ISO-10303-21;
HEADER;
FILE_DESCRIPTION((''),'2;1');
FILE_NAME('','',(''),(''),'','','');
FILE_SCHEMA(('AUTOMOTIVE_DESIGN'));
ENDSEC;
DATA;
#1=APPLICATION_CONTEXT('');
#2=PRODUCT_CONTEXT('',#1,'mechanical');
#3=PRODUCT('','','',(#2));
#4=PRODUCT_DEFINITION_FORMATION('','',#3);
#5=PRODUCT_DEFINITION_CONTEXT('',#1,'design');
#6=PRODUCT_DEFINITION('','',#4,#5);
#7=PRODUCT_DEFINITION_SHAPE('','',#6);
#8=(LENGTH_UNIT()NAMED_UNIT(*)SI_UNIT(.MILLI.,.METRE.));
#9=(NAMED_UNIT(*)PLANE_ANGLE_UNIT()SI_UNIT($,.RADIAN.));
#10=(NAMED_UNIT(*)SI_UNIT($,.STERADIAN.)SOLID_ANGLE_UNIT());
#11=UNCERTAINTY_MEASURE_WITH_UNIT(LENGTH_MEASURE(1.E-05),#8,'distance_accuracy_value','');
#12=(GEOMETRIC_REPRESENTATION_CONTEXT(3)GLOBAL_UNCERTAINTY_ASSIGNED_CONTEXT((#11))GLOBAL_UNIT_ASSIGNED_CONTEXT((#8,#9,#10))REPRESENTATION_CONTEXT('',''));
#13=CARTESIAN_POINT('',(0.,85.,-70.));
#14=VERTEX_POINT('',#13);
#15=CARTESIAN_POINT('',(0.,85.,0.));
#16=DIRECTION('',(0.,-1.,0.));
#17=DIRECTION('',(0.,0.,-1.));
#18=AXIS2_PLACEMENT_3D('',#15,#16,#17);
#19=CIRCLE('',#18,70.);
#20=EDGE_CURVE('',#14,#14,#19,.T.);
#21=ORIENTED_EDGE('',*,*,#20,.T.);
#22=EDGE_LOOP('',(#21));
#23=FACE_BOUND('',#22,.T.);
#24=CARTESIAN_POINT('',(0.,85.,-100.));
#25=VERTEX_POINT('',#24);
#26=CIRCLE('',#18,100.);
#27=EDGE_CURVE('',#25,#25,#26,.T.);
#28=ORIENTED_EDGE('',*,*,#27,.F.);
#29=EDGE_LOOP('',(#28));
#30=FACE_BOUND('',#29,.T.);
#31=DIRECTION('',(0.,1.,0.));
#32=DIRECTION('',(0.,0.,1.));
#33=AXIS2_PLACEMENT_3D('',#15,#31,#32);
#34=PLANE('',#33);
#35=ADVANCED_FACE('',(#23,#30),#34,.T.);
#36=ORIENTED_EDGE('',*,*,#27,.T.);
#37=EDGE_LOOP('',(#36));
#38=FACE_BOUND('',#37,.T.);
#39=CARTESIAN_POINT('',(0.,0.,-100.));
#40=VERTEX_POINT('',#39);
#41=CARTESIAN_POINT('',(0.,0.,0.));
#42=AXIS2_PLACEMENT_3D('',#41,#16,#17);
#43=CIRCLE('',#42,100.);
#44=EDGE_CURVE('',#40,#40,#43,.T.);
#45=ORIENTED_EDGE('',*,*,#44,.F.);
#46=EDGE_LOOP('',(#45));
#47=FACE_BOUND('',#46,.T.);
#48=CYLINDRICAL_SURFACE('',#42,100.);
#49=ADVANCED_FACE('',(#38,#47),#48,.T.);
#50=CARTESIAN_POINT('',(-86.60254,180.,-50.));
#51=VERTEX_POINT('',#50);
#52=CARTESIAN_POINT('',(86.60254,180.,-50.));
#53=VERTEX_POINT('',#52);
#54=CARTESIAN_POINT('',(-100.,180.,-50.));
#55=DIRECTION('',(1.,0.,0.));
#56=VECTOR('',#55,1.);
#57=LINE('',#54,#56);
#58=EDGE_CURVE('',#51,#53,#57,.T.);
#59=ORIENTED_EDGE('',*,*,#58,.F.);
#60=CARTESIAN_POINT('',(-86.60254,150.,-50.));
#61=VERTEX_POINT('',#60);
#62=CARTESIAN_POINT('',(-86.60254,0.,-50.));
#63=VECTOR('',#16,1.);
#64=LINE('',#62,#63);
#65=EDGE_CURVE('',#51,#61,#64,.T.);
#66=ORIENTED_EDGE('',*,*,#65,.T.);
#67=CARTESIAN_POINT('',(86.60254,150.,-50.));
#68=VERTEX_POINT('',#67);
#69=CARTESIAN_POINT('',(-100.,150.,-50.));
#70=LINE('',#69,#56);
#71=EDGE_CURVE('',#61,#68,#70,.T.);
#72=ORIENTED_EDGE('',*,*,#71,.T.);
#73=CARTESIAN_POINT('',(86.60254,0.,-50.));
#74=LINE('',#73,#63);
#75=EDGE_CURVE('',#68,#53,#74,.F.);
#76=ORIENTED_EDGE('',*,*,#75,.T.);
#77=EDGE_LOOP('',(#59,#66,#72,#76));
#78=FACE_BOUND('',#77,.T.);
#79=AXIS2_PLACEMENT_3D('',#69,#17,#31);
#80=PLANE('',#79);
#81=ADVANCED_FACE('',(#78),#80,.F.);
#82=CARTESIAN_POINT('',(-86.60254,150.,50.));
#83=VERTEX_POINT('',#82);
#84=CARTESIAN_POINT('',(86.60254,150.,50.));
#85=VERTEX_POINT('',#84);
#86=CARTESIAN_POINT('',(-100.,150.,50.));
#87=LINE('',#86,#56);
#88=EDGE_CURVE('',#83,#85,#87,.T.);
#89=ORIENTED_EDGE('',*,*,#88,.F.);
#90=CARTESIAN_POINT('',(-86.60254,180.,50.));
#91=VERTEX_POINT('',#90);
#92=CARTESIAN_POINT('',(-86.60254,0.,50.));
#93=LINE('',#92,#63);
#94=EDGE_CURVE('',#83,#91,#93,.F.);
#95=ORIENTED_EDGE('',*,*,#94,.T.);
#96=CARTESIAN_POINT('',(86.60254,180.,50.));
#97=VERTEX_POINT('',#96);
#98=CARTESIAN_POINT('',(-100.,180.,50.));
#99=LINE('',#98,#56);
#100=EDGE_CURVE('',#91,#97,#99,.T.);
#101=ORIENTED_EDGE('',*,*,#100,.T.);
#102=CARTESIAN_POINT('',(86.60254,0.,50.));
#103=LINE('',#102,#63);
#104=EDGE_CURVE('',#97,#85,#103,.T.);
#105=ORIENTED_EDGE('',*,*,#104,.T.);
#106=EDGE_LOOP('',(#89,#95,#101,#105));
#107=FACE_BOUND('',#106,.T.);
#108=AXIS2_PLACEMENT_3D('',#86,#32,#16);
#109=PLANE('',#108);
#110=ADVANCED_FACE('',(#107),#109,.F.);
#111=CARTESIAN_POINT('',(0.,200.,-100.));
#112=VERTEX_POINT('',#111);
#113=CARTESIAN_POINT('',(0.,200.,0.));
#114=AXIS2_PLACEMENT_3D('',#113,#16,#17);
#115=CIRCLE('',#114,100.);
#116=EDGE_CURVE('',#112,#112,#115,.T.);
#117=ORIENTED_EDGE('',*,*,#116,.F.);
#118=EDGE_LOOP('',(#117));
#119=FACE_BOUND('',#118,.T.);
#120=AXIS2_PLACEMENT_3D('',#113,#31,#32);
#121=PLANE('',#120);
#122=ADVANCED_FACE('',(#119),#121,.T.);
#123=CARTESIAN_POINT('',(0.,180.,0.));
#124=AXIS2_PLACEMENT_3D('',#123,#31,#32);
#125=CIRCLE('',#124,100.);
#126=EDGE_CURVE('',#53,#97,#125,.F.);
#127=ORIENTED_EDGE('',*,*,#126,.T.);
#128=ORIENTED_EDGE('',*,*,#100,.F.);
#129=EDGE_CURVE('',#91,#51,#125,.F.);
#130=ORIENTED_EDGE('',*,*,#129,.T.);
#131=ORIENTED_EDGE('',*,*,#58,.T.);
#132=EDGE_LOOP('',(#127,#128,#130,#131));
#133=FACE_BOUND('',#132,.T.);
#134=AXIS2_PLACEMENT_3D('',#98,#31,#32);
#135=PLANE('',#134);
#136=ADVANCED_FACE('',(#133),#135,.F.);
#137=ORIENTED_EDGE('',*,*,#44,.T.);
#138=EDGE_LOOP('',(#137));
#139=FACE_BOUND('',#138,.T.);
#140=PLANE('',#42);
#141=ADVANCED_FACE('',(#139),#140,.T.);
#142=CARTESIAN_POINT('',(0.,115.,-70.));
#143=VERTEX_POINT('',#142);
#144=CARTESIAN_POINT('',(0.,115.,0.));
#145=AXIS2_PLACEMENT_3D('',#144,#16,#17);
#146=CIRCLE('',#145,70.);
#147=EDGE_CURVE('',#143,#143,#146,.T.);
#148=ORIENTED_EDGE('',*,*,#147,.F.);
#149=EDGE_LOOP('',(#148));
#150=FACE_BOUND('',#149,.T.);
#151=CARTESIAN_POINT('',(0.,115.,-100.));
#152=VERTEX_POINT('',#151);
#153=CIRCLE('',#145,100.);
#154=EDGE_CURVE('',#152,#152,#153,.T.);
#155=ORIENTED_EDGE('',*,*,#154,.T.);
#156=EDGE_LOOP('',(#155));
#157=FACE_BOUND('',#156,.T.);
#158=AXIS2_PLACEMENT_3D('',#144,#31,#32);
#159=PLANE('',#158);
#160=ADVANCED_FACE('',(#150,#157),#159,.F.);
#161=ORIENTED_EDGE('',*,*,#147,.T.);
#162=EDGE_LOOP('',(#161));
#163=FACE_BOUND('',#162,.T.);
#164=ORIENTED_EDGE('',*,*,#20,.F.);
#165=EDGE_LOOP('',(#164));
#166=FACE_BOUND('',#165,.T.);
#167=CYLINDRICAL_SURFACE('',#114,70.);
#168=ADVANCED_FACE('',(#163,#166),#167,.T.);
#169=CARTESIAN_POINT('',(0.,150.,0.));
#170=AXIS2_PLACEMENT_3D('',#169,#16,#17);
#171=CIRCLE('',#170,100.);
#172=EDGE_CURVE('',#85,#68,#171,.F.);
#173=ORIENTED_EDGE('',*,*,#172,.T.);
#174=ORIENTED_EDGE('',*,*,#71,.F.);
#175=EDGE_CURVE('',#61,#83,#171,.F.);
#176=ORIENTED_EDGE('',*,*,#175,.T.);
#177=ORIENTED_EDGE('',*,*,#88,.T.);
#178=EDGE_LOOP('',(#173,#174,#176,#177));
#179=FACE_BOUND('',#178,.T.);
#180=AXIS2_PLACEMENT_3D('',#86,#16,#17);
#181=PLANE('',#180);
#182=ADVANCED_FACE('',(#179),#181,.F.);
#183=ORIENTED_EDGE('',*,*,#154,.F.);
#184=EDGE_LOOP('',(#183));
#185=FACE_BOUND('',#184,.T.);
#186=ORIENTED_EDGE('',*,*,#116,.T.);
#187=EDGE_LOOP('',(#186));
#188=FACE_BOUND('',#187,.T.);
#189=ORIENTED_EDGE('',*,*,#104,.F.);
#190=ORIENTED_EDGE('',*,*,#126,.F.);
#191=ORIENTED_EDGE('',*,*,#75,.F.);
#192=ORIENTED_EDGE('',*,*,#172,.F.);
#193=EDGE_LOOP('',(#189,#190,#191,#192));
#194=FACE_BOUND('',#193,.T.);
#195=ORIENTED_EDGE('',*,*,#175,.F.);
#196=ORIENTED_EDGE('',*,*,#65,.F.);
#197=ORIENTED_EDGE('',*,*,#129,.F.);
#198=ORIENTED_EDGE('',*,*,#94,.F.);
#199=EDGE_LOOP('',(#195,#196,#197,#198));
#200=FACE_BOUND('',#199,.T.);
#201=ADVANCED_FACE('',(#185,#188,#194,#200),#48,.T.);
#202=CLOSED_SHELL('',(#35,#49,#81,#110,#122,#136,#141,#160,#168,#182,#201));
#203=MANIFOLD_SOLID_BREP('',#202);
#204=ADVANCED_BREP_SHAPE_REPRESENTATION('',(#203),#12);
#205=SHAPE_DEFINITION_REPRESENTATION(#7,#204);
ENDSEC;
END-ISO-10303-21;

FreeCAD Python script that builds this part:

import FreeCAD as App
import Part
import Sketcher
from FreeCAD import Vector
Q = App.Units.Quantity


def add_polygon(sketch, points):
    """Adds a closed chain of lines whose ends are joined by coincident constraints."""
    first, n = sketch.GeometryCount, len(points)
    for a, b in zip(points, points[1:] + points[:1]):
        sketch.addGeometry(Part.LineSegment(App.Vector(*a, 0), App.Vector(*b, 0)), False)
    for i in range(n):
        sketch.addConstraint(Sketcher.Constraint("Coincident", first + i, 2, first + (i + 1) % n, 1))

doc = App.newDocument("Part")
body = doc.addObject("PartDesign::Body", "Body")

# Sketch on XY plane
sketch1 = body.newObject("Sketcher::SketchObject", "Sketch")
sketch1.AttachmentSupport = (doc.getObject("XY_Plane"), [""])
sketch1.MapMode = "FlatFace"
add_polygon(sketch1, [(0, 200), (0, 0), (100, 0), (100, 200)])  # lines 0-3
sketch1.addConstraint([
    Sketcher.Constraint("Vertical", 0),
    Sketcher.Constraint("Horizontal", 1),
    Sketcher.Constraint("Vertical", 2),
    Sketcher.Constraint("Horizontal", 3),
    Sketcher.Constraint("Coincident", 0, 2, -1, 1),
    Sketcher.Constraint("DistanceX", 1, 1, 1, 2, Q("100 mm")),
    Sketcher.Constraint("DistanceY", 0, 2, 0, 1, Q("200 mm")),
])
revolution = body.newObject("PartDesign::Revolution", "Revolution")
revolution.Profile = sketch1
revolution.ReferenceAxis = (sketch1, ["V_Axis"])
revolution.Angle = 360

# Sketch on YZ plane
sketch2 = body.newObject("Sketcher::SketchObject", "Sketch001")
sketch2.AttachmentSupport = (doc.getObject("YZ_Plane"), [""])
sketch2.MapMode = "FlatFace"
add_polygon(sketch2, [(85, -70), (85, -100), (115, -100), (115, -70)])  # lines 0-3
sketch2.addConstraint([
    Sketcher.Constraint("Vertical", 0),
    Sketcher.Constraint("Horizontal", 1),
    Sketcher.Constraint("Vertical", 2),
    Sketcher.Constraint("Horizontal", 3),
    Sketcher.Constraint("Equal", 3, 0),
    Sketcher.Constraint("DistanceX", 1, 1, 1, 2, Q("30 mm")),
    Sketcher.Constraint("DistanceX", -1, 1, 0, 2, Q("85 mm")),
    Sketcher.Constraint("DistanceY", 0, 2, -1, 1, Q("100 mm")),
])
groove = body.newObject("PartDesign::Groove", "Groove")
groove.Profile = sketch2
groove.ReferenceAxis = (sketch2, ["H_Axis"])
groove.Angle = 360

# Sketch on YZ plane
sketch3 = body.newObject("Sketcher::SketchObject", "Sketch002")
sketch3.AttachmentSupport = (doc.getObject("YZ_Plane"), [""])
sketch3.MapMode = "FlatFace"
add_polygon(sketch3, [(180, 50), (150, 50), (150, -50), (180, -50)])  # lines 0-3
sketch3.addConstraint([
    Sketcher.Constraint("Horizontal", 0),
    Sketcher.Constraint("Vertical", 1),
    Sketcher.Constraint("Horizontal", 2),
    Sketcher.Constraint("Vertical", 3),
    Sketcher.Constraint("DistanceX", 0, 2, 0, 1, Q("30 mm")),
    Sketcher.Constraint("DistanceY", 1, 2, 1, 1, Q("100 mm")),
    Sketcher.Constraint("DistanceX", -1, 1, 0, 2, Q("150 mm")),
    Sketcher.Constraint("DistanceY", -1, 1, 0, 2, Q("50 mm")),
])
pocket1 = body.newObject("PartDesign::Pocket", "Pocket")
pocket1.Profile = sketch3
pocket1.Type = "ThroughAll"
pocket1.Midplane = True

doc.recompute()
